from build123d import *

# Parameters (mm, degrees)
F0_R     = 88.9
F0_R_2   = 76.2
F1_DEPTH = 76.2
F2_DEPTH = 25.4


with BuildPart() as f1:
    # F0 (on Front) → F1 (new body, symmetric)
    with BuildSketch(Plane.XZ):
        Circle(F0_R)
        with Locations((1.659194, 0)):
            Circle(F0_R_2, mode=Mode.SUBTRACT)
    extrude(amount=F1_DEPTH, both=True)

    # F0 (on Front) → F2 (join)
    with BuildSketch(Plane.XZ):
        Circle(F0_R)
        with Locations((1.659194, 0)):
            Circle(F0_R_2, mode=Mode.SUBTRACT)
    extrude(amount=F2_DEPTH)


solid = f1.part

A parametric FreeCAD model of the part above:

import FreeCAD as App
import Part
import Sketcher
Q = App.Units.Quantity

doc = App.newDocument("Part")
params = doc.addObject("Spreadsheet::Sheet", "Params")
for row, (alias, value) in enumerate([
    ("sketch1_diameter", "7 in"),
    ("sketch1_diameter2", "6 in"),
    ("pad1_length", "6 in"),
    ("sketch2_diameter", "7 in"),
    ("sketch2_diameter2", "6 in"),
    ("pad2_length", "1 in"),
], start=1):
    params.set(f"A{row}", alias)
    params.set(f"B{row}", "=" + value)
    params.setAlias(f"B{row}", alias)

body = doc.addObject("PartDesign::Body", "Body")

# Sketch on XZ plane
sketch1 = doc.addObject("Sketcher::SketchObject", "Sketch")
body.addObject(sketch1)
sketch1.AttachmentSupport = (doc.XZ_Plane, [""])
sketch1.MapMode = "FlatFace"
sketch1.addGeometry([
    Part.Circle(App.Vector(0, 0, 0), App.Vector(0, 0, 1), 88.9),
    Part.Circle(App.Vector(1.659194, 0, 0), App.Vector(0, 0, 1), 76.2),
], False)
sketch1.addConstraint([
    Sketcher.Constraint("Coincident", 0, 3, -1, 1),
    Sketcher.Constraint("PointOnObject", 1, 3, -1),
    Sketcher.Constraint("Diameter", 0, Q("7 in")),
    Sketcher.Constraint("Diameter", 1, Q("6 in")),
    Sketcher.Constraint("DistanceX", -1, 1, 1, 3, 1.659194),
])
sketch1.setExpression("Constraints[2]", "Params.sketch1_diameter")
sketch1.setExpression("Constraints[3]", "Params.sketch1_diameter2")
pad1 = doc.addObject("PartDesign::Pad", "Pad")
body.addObject(pad1)
pad1.Profile = sketch1
pad1.setExpression("Length", "Params.pad1_length")
pad1.Midplane = True

# Sketch on XZ plane
sketch2 = doc.addObject("Sketcher::SketchObject", "Sketch001")
body.addObject(sketch2)
sketch2.AttachmentSupport = (doc.XZ_Plane, [""])
sketch2.MapMode = "FlatFace"
sketch2.addGeometry([
    Part.Circle(App.Vector(0, 0, 0), App.Vector(0, 0, 1), 88.9),
    Part.Circle(App.Vector(1.659194, 0, 0), App.Vector(0, 0, 1), 76.2),
], False)
sketch2.addConstraint([
    Sketcher.Constraint("Coincident", 0, 3, -1, 1),
    Sketcher.Constraint("PointOnObject", 1, 3, -1),
    Sketcher.Constraint("Diameter", 0, Q("7 in")),
    Sketcher.Constraint("Diameter", 1, Q("6 in")),
    Sketcher.Constraint("DistanceX", -1, 1, 1, 3, 1.659194),
])
sketch2.setExpression("Constraints[2]", "Params.sketch2_diameter")
sketch2.setExpression("Constraints[3]", "Params.sketch2_diameter2")
pad2 = doc.addObject("PartDesign::Pad", "Pad001")
body.addObject(pad2)
pad2.Profile = sketch2
pad2.setExpression("Length", "Params.pad2_length")

doc.recompute()
